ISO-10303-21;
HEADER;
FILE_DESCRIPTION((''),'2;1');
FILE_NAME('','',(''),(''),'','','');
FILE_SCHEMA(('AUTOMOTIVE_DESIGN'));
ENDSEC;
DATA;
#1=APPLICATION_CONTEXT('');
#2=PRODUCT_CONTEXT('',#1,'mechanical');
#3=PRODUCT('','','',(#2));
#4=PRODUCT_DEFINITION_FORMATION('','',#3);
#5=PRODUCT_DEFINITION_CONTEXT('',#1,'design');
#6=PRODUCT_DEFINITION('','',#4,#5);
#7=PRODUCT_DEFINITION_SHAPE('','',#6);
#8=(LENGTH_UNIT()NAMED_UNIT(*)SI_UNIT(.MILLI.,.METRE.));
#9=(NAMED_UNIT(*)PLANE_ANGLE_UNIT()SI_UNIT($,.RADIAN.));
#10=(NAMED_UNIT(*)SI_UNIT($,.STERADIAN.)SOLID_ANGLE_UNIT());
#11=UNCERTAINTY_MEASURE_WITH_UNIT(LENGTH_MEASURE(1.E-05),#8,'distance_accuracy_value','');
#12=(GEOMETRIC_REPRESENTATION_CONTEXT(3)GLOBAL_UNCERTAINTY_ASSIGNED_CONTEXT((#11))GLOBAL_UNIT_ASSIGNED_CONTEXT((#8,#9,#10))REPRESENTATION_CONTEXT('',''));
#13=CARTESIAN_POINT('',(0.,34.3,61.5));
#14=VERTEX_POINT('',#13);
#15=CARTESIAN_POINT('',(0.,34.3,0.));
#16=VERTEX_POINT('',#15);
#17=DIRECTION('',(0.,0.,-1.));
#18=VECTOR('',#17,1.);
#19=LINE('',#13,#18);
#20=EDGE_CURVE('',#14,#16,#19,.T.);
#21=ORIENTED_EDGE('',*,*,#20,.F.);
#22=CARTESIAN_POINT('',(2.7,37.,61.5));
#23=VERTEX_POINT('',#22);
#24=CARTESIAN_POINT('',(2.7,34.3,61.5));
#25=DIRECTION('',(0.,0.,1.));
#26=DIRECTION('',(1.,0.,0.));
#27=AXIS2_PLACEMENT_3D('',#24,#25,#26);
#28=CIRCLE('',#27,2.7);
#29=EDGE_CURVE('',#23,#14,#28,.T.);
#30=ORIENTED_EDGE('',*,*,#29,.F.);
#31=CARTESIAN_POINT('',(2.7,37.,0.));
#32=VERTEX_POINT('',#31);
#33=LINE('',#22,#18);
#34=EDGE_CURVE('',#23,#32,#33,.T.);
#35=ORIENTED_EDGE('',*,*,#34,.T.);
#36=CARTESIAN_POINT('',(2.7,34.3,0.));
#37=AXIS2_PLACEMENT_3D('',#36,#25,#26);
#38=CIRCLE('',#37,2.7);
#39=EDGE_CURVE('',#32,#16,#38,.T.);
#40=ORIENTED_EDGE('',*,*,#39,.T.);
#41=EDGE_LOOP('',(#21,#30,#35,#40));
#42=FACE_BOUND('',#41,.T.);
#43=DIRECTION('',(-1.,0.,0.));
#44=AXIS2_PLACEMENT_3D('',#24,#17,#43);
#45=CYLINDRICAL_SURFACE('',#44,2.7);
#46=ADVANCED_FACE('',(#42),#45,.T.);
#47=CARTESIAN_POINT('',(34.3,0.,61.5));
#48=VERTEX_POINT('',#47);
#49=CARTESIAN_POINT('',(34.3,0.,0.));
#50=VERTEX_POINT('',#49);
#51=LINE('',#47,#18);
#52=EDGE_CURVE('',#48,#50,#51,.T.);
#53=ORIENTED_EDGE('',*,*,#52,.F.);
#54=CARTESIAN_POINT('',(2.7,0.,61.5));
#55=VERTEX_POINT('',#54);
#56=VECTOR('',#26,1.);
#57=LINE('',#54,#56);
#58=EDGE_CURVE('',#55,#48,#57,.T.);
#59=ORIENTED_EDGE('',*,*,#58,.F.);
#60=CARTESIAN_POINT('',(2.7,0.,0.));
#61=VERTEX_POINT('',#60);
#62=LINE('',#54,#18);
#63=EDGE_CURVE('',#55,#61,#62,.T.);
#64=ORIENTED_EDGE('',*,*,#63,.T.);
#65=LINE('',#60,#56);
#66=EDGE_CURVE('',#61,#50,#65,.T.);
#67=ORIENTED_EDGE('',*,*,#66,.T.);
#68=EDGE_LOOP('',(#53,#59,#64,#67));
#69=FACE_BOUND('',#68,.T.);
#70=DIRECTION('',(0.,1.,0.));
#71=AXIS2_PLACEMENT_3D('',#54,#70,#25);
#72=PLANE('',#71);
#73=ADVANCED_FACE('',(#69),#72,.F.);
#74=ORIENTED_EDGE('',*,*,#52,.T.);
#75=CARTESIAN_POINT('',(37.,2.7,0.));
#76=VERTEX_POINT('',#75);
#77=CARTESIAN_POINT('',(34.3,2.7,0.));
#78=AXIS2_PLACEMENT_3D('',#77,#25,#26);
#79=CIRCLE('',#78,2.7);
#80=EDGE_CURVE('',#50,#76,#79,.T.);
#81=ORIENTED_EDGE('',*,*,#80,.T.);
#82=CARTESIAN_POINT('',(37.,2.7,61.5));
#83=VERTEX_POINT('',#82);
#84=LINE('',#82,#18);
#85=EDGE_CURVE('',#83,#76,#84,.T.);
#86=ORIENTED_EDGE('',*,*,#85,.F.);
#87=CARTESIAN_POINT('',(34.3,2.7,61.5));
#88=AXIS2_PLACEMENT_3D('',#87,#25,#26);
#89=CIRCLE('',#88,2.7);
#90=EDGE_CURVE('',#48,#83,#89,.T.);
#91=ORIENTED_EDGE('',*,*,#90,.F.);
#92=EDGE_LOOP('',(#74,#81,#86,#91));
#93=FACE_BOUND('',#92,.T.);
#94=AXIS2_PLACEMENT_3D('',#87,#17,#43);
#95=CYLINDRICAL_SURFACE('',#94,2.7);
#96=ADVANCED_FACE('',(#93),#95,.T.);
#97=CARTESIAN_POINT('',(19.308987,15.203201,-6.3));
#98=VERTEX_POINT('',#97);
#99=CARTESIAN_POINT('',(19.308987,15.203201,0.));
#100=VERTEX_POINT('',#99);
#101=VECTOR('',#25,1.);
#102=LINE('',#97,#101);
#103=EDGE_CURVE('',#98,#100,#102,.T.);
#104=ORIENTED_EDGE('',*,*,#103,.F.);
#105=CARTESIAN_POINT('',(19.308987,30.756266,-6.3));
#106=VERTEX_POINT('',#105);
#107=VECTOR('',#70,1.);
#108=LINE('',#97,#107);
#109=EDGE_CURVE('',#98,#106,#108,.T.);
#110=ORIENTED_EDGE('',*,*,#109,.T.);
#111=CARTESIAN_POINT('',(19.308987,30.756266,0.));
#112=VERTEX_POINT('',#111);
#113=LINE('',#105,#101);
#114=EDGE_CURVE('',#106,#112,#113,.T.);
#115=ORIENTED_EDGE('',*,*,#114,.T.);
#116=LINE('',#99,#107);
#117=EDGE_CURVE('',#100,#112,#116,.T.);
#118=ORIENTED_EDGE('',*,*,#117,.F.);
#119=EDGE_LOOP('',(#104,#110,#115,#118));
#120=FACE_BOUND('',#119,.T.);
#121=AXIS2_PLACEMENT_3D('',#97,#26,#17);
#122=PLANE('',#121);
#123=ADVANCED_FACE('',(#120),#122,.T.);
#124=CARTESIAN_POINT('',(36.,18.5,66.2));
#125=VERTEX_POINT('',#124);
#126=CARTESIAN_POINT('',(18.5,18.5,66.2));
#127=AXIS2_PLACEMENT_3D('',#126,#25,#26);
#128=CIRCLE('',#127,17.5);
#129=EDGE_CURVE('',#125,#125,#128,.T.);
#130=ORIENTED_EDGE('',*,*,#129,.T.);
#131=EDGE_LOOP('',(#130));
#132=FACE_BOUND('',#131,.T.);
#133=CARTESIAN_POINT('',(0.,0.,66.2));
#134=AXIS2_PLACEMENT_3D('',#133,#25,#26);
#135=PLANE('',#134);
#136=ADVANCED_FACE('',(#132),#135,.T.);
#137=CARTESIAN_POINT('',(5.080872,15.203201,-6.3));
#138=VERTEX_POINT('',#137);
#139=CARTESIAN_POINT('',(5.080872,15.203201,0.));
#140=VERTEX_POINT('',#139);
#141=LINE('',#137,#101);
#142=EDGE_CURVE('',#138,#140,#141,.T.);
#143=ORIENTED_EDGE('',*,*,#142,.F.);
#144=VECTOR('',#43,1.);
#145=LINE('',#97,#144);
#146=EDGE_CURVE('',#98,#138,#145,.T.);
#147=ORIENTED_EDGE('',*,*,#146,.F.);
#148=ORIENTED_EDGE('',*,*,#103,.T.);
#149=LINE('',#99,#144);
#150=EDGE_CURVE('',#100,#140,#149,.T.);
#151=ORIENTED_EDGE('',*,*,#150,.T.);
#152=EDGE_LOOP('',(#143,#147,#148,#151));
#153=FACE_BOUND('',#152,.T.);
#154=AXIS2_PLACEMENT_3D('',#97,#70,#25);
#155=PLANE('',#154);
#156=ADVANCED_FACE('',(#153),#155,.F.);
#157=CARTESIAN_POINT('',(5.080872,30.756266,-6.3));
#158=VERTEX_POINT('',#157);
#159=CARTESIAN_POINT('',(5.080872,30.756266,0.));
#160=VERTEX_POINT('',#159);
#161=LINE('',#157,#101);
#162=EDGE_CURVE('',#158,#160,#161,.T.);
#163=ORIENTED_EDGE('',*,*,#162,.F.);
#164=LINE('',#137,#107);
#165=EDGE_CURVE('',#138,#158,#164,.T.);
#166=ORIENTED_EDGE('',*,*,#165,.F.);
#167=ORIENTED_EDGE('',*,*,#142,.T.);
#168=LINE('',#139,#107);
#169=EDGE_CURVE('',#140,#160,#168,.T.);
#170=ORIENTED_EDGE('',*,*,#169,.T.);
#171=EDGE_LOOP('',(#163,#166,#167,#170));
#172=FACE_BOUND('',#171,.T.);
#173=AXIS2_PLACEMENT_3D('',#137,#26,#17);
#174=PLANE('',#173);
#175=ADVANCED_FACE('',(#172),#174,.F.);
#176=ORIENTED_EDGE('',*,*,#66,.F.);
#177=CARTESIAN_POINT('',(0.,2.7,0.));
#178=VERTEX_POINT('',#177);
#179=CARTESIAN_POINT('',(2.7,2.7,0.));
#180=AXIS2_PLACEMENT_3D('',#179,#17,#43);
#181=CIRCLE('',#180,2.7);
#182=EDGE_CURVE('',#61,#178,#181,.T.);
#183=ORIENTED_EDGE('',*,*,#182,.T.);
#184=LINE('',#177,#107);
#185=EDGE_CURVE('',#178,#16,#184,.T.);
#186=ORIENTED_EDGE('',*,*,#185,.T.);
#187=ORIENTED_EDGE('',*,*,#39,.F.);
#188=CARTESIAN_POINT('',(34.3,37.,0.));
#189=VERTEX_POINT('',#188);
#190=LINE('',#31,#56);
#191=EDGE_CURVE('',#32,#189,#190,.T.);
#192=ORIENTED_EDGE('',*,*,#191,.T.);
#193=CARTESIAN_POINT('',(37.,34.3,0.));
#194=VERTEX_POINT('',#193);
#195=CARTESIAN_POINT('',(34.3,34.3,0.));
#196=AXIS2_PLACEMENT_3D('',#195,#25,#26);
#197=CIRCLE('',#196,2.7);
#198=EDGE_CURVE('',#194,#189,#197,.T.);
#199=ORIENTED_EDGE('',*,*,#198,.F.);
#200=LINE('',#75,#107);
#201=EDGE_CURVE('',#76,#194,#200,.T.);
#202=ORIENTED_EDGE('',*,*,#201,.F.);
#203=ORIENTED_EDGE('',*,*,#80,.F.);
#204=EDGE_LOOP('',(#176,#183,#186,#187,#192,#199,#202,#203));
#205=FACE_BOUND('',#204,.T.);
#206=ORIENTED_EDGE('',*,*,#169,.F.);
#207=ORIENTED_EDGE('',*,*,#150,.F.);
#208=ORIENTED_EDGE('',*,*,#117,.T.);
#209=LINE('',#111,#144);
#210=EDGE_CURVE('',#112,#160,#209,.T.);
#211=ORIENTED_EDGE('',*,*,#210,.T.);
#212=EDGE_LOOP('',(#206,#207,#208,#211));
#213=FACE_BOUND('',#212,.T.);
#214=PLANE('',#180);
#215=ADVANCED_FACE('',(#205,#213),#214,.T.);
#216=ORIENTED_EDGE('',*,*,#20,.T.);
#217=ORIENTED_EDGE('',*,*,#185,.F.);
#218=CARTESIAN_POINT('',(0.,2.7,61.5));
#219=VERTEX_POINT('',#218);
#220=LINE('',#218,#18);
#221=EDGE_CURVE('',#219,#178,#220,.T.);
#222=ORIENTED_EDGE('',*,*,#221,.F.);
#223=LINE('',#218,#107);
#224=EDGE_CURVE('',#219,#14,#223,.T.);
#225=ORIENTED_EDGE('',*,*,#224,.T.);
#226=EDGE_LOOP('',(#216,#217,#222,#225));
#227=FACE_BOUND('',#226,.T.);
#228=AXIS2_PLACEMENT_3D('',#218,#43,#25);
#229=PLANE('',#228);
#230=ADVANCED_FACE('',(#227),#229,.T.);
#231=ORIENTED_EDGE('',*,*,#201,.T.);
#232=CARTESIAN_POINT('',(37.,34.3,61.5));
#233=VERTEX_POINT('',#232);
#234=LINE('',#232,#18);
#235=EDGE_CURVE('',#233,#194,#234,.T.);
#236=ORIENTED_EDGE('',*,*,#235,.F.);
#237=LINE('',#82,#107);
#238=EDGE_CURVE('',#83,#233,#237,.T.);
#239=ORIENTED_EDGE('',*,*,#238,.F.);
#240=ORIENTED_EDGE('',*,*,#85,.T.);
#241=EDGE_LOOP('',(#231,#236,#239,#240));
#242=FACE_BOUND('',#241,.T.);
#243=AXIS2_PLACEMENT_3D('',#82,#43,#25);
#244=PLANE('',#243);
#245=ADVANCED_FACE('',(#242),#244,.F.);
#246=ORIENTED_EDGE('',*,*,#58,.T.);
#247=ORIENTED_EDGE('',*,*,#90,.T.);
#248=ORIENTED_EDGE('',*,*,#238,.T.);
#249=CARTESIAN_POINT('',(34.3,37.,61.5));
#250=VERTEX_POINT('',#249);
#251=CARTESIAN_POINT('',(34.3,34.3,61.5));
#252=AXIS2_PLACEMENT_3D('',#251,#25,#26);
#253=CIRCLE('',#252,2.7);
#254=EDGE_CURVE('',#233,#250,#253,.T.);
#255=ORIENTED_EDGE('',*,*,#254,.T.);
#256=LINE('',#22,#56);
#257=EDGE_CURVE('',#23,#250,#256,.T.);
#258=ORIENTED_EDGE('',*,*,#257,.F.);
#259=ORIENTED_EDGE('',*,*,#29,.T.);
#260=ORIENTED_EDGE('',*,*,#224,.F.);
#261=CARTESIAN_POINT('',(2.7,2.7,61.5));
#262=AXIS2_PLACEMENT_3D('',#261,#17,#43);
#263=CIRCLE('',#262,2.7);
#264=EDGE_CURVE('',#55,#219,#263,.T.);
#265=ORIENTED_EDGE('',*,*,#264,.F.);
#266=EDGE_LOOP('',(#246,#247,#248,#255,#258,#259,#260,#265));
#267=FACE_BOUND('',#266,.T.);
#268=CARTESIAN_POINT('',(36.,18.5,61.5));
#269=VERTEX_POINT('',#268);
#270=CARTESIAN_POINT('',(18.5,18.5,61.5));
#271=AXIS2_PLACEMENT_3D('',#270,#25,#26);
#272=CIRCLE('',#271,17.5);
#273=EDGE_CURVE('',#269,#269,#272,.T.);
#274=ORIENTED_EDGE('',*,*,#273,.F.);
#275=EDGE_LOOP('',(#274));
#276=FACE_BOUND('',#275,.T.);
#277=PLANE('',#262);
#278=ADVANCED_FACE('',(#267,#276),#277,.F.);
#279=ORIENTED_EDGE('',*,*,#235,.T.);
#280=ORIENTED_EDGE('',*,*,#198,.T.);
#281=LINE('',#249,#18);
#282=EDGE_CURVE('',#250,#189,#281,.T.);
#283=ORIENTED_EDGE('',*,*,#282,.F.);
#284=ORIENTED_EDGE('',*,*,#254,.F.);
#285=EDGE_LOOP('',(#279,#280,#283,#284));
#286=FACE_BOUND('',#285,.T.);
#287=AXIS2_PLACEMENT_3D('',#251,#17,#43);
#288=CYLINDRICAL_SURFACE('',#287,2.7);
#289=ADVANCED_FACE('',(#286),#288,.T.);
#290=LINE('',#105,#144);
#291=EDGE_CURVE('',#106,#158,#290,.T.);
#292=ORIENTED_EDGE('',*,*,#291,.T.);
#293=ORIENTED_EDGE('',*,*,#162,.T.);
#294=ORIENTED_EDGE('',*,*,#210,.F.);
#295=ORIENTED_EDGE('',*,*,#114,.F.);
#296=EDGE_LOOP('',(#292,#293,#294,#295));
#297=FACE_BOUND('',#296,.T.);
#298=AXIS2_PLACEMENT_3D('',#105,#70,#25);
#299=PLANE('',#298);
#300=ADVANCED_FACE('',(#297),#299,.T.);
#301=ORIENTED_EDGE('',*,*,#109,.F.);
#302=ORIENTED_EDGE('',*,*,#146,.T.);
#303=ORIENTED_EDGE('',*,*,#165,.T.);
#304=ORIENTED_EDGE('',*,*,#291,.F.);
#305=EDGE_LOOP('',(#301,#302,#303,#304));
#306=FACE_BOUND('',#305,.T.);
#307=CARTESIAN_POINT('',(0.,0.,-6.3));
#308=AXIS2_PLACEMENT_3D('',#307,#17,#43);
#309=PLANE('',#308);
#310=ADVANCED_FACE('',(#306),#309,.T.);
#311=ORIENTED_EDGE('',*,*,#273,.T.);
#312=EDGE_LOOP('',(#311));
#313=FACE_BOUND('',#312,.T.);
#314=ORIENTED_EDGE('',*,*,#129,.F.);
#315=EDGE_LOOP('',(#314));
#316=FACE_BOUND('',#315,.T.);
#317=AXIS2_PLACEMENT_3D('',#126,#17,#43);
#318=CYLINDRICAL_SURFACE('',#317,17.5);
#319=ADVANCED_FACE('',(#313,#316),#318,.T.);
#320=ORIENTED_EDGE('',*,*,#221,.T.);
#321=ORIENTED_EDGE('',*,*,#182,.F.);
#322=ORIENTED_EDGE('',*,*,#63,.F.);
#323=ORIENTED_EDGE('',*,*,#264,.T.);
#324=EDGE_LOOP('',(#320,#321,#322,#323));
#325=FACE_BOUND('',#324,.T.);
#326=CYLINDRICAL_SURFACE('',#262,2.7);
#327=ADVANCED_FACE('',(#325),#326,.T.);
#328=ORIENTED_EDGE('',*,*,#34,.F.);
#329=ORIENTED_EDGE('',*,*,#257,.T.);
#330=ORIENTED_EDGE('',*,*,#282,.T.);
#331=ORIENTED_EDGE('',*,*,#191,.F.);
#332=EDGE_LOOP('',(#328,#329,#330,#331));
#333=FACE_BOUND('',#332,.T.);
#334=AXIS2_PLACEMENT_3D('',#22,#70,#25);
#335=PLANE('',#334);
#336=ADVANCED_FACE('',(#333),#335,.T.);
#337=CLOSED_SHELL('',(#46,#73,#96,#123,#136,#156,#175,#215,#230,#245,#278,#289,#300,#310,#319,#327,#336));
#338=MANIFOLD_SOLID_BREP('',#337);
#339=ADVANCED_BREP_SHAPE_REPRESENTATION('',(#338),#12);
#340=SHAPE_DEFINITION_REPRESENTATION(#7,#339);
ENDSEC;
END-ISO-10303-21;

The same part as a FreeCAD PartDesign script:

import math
import FreeCAD as App
import Part
import Sketcher
from FreeCAD import Vector
Q = App.Units.Quantity


def add_polygon(sketch, points):
    """Adds a closed chain of lines whose ends are joined by coincident constraints."""
    first, n = sketch.GeometryCount, len(points)
    for a, b in zip(points, points[1:] + points[:1]):
        sketch.addGeometry(Part.LineSegment(App.Vector(*a, 0), App.Vector(*b, 0)), False)
    for i in range(n):
        sketch.addConstraint(Sketcher.Constraint("Coincident", first + i, 2, first + (i + 1) % n, 1))

doc = App.newDocument("Part")
params = doc.addObject("Spreadsheet::Sheet", "Params")
for row, (alias, value) in enumerate([
    ("sketch1_radius", "2.7 mm"),
    ("sketch1_width", "31.6 mm"),
    ("pad1_length", "61.5 mm"),
    ("sketch2_diameter", "35 mm"),
    ("pad2_length", "4.7 mm"),
    ("pad3_length", "6.3 mm"),
], start=1):
    params.set(f"A{row}", alias)
    params.set(f"B{row}", "=" + value)
    params.setAlias(f"B{row}", alias)

body = doc.addObject("PartDesign::Body", "Body")

# Sketch on XY plane
sketch1 = body.newObject("Sketcher::SketchObject", "Sketch")
sketch1.AttachmentSupport = (doc.getObject("XY_Plane"), [""])
sketch1.MapMode = "FlatFace"
sketch1.addGeometry(Part.LineSegment(Vector(2.7, 0, 0), Vector(34.3, 0, 0)), False)
sketch1.addGeometry(Part.ArcOfCircle(Part.Circle(Vector(34.3, 2.7, 0), Vector(0, 0, 1), 2.7), math.radians(-90), math.radians(0)), False)
sketch1.addGeometry(Part.LineSegment(Vector(37, 2.7, 0), Vector(37, 34.3, 0)), False)
sketch1.addGeometry(Part.ArcOfCircle(Part.Circle(Vector(34.3, 34.3, 0), Vector(0, 0, 1), 2.7), math.radians(0), math.radians(90)), False)
sketch1.addGeometry(Part.LineSegment(Vector(34.3, 37, 0), Vector(2.7, 37, 0)), False)
sketch1.addGeometry(Part.ArcOfCircle(Part.Circle(Vector(2.7, 34.3, 0), Vector(0, 0, 1), 2.7), math.radians(90), math.radians(180)), False)
sketch1.addGeometry(Part.LineSegment(Vector(0, 34.3, 0), Vector(0, 2.7, 0)), False)
sketch1.addGeometry(Part.ArcOfCircle(Part.Circle(Vector(2.7, 2.7, 0), Vector(0, 0, 1), 2.7), math.radians(-180), math.radians(-90)), False)
sketch1.addConstraint(Sketcher.Constraint("Tangent", 0, 2, 1, 1))
sketch1.addConstraint(Sketcher.Constraint("Tangent", 1, 2, 2, 1))
sketch1.addConstraint(Sketcher.Constraint("Tangent", 2, 2, 3, 1))
sketch1.addConstraint(Sketcher.Constraint("Tangent", 3, 2, 4, 1))
sketch1.addConstraint(Sketcher.Constraint("Tangent", 4, 2, 5, 1))
sketch1.addConstraint(Sketcher.Constraint("Tangent", 5, 2, 6, 1))
sketch1.addConstraint(Sketcher.Constraint("Tangent", 6, 2, 7, 1))
sketch1.addConstraint(Sketcher.Constraint("Tangent", 7, 2, 0, 1))
sketch1.addConstraint(Sketcher.Constraint("Horizontal", 0))
sketch1.addConstraint(Sketcher.Constraint("Vertical", 2))
sketch1.addConstraint(Sketcher.Constraint("Horizontal", 4))
sketch1.addConstraint(Sketcher.Constraint("Vertical", 6))
sketch1.addConstraint(Sketcher.Constraint("Equal", 1, 3))
sketch1.addConstraint(Sketcher.Constraint("Equal", 3, 5))
sketch1.addConstraint(Sketcher.Constraint("Equal", 5, 7))
sketch1.addConstraint(Sketcher.Constraint("PointOnObject", 0, 2, -1))
sketch1.addConstraint(Sketcher.Constraint("PointOnObject", 5, 2, -2))
sketch1.addConstraint(Sketcher.Constraint("Equal", 4, 2))
sketch1.addConstraint(Sketcher.Constraint("Radius", 1, Q("2.7 mm")))
sketch1.addConstraint(Sketcher.Constraint("DistanceX", 0, 1, 0, 2, Q("31.6 mm")))
sketch1.setExpression("Constraints[18]", "Params.sketch1_radius")
sketch1.setExpression("Constraints[19]", "Params.sketch1_width")
pad1 = body.newObject("PartDesign::Pad", "Pad")
pad1.Profile = sketch1
pad1.setExpression("Length", "Params.pad1_length")

# Sketch on XY plane
sketch2 = body.newObject("Sketcher::SketchObject", "Sketch001")
sketch2.AttachmentSupport = (doc.getObject("XY_Plane"), [""])
sketch2.MapMode = "FlatFace"
sketch2.AttachmentOffset = App.Placement(Vector(0, 0, 61.5), App.Rotation())
sketch2.addGeometry(Part.Circle(Vector(18, 18, 0), Vector(0, 0, 1), 18), False)
sketch2.addConstraint(Sketcher.Constraint("Diameter", 0, Q("35 mm")))
sketch2.addConstraint(Sketcher.Constraint("DistanceX", -1, 1, 0, 3, Q("18.5 mm")))
sketch2.addConstraint(Sketcher.Constraint("DistanceY", -1, 1, 0, 3, Q("18.5 mm")))
sketch2.setExpression("Constraints[0]", "Params.sketch2_diameter")
pad2 = body.newObject("PartDesign::Pad", "Pad001")
pad2.Profile = sketch2
pad2.setExpression("Length", "Params.pad2_length")

# Sketch on XY plane
sketch3 = body.newObject("Sketcher::SketchObject", "Sketch002")
sketch3.AttachmentSupport = (doc.getObject("XY_Plane"), [""])
sketch3.MapMode = "FlatFace"
add_polygon(sketch3, [(19, 31), (19, 15), (5, 15), (5, 31)])  # lines 0-3
sketch3.addConstraint(Sketcher.Constraint("Vertical", 0))
sketch3.addConstraint(Sketcher.Constraint("Horizontal", 1))
sketch3.addConstraint(Sketcher.Constraint("Vertical", 2))
sketch3.addConstraint(Sketcher.Constraint("Horizontal", 3))
sketch3.addConstraint(Sketcher.Constraint("DistanceY", -1, 1, 0, 2, Q("15.203201 mm")))
sketch3.addConstraint(Sketcher.Constraint("DistanceX", 1, 2, 1, 1, Q("14.228114 mm")))
sketch3.addConstraint(Sketcher.Constraint("DistanceY", 0, 2, 0, 1, Q("15.553065 mm")))
sketch3.addConstraint(Sketcher.Constraint("DistanceX", -1, 1, 0, 2, Q("19.308987 mm")))
pad3 = body.newObject("PartDesign::Pad", "Pad002")
pad3.Profile = sketch3
pad3.setExpression("Length", "Params.pad3_length")
pad3.Reversed = True

doc.recompute()
